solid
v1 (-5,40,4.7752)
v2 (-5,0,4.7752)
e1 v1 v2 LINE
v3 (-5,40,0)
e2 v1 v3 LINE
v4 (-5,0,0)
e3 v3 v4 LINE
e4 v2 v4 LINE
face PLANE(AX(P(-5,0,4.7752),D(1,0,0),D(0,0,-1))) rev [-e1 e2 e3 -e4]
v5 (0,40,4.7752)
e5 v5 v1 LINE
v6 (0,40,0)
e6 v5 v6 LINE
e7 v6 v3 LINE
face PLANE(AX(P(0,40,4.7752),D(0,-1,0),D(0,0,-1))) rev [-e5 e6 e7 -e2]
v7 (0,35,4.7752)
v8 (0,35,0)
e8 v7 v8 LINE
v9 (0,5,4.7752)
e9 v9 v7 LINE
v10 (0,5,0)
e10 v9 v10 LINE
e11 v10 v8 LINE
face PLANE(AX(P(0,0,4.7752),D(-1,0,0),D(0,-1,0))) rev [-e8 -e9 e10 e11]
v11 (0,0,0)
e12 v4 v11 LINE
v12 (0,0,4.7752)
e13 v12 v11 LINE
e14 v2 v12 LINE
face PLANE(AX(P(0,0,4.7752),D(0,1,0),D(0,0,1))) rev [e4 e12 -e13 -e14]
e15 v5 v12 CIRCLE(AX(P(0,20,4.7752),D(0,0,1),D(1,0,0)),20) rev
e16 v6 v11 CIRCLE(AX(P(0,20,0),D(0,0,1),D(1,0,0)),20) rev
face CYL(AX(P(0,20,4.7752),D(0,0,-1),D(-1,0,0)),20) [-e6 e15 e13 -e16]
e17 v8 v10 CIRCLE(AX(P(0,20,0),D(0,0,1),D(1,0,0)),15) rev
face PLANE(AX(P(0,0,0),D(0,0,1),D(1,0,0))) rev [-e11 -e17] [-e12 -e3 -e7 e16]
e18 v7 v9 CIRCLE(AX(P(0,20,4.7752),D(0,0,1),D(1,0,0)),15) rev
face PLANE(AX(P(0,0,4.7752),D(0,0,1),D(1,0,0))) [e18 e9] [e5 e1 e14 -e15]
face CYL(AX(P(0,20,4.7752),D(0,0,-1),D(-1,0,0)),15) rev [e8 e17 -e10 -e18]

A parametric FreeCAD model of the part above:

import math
import FreeCAD as App
import Part
import Sketcher
Q = App.Units.Quantity

doc = App.newDocument("Part")
body = doc.addObject("PartDesign::Body", "Body")

# Sketch on XY plane
sketch1 = body.newObject("Sketcher::SketchObject", "Sketch")
sketch1.AttachmentSupport = (doc.getObject("XY_Plane"), [""])
sketch1.MapMode = "FlatFace"
sketch1.addGeometry([
    Part.LineSegment(App.Vector(-5, 40, 0), App.Vector(-5, 0, 0)),  # 0
    Part.LineSegment(App.Vector(-5, 0, 0), App.Vector(0, 0, 0)),  # 1
    Part.ArcOfCircle(Part.Circle(App.Vector(0, 20, 0), App.Vector(0, 0, 1), 20), math.radians(-90), math.radians(90)),  # 2
    Part.LineSegment(App.Vector(0, 40, 0), App.Vector(-5, 40, 0)),  # 3
    Part.LineSegment(App.Vector(0, 5, 0), App.Vector(0, 35, 0)),  # 4
    Part.ArcOfCircle(Part.Circle(App.Vector(0, 20, 0), App.Vector(0, 0, 1), 15), math.radians(-90), math.radians(90)),  # 5
], False)
sketch1.addConstraint([
    Sketcher.Constraint("Coincident", 0, 2, 1, 1),
    Sketcher.Constraint("Tangent", 1, 2, 2, 1),
    Sketcher.Constraint("Tangent", 2, 2, 3, 1),
    Sketcher.Constraint("Coincident", 3, 2, 0, 1),
    Sketcher.Constraint("Coincident", 4, 1, 5, 1),
    Sketcher.Constraint("Coincident", 5, 2, 4, 2),
    Sketcher.Constraint("Vertical", 0),
    Sketcher.Constraint("Horizontal", 1),
    Sketcher.Constraint("Horizontal", 3),
    Sketcher.Constraint("Vertical", 4),
    Sketcher.Constraint("Coincident", 1, 2, -1, 1),
    Sketcher.Constraint("Coincident", 5, 3, 2, 3),
    Sketcher.Constraint("PointOnObject", 4, 1, -2),
    Sketcher.Constraint("Radius", 2, Q("20 mm")),
    Sketcher.Constraint("Radius", 5, Q("15 mm")),
    Sketcher.Constraint("DistanceX", 1, 1, 1, 2, Q("5 mm")),
])
pad1 = body.newObject("PartDesign::Pad", "Pad")
pad1.Profile = sketch1
pad1.Length = 4.7752

doc.recompute()
